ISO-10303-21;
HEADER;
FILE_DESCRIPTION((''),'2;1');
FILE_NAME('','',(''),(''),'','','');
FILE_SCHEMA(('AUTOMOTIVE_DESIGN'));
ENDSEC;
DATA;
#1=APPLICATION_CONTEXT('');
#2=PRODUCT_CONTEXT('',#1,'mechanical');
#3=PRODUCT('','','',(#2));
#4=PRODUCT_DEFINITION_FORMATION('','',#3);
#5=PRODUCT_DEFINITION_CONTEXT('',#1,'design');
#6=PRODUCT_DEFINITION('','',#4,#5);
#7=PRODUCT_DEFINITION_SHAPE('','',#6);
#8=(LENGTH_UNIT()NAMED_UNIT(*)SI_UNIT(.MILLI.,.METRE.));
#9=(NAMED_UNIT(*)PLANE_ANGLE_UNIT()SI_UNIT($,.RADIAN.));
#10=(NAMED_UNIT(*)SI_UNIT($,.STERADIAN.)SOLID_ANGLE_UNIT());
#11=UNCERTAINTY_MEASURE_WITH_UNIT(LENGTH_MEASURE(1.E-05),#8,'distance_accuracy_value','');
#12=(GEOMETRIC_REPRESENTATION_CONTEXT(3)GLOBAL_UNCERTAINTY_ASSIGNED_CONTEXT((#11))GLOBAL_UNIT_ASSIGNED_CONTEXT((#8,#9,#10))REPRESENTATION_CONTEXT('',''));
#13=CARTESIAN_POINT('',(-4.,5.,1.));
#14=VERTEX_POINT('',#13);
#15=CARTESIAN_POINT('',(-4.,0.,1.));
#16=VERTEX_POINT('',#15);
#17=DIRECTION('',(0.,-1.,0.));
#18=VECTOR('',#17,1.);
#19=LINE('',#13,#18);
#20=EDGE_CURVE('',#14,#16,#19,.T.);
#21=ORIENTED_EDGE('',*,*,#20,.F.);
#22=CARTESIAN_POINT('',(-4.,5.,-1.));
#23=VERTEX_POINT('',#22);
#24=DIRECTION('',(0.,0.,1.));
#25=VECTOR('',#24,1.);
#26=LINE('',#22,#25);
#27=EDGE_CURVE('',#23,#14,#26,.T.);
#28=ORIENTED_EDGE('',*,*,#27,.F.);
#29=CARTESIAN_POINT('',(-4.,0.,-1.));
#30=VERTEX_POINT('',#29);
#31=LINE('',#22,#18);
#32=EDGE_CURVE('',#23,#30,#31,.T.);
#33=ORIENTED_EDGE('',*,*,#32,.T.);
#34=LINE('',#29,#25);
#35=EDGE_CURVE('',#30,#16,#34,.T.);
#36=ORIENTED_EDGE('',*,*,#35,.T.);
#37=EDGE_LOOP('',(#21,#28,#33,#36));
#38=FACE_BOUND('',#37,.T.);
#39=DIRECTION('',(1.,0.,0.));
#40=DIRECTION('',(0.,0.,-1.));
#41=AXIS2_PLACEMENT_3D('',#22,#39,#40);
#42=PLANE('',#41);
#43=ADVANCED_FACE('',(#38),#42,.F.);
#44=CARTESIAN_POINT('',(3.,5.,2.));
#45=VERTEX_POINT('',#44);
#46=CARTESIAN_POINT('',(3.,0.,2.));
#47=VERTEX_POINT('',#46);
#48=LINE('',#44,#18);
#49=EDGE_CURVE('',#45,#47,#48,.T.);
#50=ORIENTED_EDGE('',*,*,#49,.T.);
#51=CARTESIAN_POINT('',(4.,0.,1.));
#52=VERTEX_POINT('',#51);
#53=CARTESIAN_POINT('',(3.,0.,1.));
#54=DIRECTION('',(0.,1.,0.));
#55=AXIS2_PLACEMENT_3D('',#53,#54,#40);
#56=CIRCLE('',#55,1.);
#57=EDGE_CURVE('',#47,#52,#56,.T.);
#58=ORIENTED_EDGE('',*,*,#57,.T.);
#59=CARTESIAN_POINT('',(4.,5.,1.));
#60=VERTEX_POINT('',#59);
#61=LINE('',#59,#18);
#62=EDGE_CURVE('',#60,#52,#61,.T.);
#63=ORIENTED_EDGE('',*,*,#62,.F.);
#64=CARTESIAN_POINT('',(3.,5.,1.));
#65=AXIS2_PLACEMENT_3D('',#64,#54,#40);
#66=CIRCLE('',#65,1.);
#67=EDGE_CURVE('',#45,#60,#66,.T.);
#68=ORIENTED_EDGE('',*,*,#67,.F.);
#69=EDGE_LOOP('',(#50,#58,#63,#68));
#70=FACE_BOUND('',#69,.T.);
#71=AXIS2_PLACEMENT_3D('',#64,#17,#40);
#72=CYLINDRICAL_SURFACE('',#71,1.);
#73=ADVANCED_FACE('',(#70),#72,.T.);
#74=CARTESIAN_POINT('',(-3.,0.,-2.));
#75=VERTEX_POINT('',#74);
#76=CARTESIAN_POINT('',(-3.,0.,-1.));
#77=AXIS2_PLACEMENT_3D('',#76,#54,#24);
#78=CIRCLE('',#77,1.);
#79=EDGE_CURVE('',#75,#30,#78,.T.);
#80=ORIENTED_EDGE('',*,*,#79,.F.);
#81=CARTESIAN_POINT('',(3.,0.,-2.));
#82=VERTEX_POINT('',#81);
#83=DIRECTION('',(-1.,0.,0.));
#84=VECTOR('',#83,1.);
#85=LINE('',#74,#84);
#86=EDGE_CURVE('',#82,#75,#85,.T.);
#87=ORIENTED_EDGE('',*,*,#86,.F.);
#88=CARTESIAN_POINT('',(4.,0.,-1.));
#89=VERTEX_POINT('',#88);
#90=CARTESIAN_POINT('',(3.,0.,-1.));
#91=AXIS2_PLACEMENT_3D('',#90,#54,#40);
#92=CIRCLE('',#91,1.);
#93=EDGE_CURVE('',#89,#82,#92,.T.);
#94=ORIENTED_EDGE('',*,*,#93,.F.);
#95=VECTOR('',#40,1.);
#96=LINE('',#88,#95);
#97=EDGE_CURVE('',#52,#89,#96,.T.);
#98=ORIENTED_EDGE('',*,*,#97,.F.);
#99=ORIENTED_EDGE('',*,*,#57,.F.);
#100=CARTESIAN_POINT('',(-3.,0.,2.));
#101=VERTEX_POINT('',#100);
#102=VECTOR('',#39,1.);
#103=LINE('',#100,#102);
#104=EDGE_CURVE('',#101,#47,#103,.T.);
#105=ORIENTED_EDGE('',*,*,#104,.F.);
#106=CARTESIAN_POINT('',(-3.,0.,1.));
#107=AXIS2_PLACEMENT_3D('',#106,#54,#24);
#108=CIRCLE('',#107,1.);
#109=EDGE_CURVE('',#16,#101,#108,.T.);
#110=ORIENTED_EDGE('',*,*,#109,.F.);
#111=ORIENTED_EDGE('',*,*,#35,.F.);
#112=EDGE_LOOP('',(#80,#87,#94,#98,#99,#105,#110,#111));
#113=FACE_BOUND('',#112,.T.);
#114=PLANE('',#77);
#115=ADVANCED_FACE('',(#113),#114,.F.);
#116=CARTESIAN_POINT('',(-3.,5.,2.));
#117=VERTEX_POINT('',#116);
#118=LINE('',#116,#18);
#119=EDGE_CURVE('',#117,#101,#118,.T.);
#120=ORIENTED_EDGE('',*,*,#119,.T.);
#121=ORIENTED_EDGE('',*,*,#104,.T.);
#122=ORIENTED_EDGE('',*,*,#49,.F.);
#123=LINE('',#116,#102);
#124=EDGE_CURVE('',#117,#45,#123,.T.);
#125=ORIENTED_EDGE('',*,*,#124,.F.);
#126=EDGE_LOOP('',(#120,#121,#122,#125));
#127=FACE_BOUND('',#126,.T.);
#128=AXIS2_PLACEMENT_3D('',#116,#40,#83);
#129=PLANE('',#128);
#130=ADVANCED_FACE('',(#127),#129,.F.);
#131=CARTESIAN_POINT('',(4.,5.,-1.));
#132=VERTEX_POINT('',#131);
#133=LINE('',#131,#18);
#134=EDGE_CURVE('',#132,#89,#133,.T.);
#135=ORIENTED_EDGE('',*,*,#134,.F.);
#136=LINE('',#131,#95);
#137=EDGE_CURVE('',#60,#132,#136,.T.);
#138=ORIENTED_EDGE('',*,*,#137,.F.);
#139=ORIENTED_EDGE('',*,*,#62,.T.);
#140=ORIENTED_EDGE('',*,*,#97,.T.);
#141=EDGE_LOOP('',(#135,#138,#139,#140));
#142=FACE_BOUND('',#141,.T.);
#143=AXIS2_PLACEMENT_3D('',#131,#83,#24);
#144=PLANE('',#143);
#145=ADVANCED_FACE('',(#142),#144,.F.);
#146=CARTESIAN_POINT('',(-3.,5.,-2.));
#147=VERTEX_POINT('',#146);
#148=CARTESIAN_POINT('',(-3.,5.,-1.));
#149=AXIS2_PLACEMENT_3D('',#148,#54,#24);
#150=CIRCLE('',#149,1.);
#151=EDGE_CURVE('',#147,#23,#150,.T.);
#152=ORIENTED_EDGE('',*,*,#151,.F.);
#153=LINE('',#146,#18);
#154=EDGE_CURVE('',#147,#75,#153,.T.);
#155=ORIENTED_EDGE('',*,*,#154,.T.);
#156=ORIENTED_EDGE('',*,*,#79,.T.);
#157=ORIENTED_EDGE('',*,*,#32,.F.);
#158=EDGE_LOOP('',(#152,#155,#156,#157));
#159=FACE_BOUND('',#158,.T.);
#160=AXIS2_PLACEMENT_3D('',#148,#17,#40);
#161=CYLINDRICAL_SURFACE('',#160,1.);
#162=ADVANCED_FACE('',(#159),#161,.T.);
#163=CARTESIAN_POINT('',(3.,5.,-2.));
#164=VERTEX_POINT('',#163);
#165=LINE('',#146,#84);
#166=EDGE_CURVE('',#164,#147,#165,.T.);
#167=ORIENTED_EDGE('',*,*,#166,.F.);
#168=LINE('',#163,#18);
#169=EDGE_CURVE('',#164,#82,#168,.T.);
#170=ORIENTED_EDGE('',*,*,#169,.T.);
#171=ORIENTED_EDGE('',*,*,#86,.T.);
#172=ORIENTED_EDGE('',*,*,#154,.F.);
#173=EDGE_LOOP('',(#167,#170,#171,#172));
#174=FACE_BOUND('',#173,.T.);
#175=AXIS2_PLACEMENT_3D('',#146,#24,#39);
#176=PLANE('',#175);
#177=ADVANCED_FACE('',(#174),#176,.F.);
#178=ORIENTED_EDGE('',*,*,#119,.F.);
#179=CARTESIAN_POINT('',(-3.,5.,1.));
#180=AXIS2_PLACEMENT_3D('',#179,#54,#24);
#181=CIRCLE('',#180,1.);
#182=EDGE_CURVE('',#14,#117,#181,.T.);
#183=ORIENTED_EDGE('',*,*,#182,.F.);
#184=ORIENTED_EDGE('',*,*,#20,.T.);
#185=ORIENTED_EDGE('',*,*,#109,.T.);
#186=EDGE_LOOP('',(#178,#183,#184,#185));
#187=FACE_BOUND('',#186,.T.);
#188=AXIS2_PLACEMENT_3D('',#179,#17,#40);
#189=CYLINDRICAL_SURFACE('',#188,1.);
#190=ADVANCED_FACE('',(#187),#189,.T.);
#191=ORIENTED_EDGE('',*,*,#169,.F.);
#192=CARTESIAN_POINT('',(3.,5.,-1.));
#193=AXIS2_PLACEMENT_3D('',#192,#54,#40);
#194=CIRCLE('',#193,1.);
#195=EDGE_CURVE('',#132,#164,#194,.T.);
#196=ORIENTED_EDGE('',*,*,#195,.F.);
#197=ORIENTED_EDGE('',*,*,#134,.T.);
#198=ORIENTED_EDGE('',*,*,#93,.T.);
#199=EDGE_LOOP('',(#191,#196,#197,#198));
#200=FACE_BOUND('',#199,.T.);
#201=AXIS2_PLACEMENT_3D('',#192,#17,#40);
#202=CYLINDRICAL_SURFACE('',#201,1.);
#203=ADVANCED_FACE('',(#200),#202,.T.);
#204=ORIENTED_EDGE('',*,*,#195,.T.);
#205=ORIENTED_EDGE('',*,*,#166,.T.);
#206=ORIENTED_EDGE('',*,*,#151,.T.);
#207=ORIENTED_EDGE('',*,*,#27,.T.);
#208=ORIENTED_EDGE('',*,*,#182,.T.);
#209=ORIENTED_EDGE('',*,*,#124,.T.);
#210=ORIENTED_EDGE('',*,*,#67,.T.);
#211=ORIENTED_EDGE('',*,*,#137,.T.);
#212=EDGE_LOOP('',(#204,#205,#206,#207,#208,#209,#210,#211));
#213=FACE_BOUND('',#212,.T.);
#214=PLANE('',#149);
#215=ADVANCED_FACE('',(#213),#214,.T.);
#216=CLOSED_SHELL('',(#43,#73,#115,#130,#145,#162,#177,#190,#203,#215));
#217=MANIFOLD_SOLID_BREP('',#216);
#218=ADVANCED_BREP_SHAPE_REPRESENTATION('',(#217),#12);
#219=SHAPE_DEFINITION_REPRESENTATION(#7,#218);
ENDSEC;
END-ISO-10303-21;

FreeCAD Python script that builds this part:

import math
import FreeCAD as App
import Part
import Sketcher
from FreeCAD import Vector
Q = App.Units.Quantity

doc = App.newDocument("Part")
body = doc.addObject("PartDesign::Body", "Body")

# Sketch on XZ plane
sketch1 = doc.addObject("Sketcher::SketchObject", "Sketch")
body.addObject(sketch1)
sketch1.AttachmentSupport = (doc.XZ_Plane, [""])
sketch1.MapMode = "FlatFace"
sketch1.addGeometry([
    Part.LineSegment(Vector(3, -2, 0), Vector(-3, -2, 0)),  # 0
    Part.ArcOfCircle(Part.Circle(Vector(-3, -1, 0), Vector(0, 0, 1), 1), math.radians(-180), math.radians(-90)),  # 1
    Part.LineSegment(Vector(-4, -1, 0), Vector(-4, 1, 0)),  # 2
    Part.ArcOfCircle(Part.Circle(Vector(-3, 1, 0), Vector(0, 0, 1), 1), math.radians(90), math.radians(180)),  # 3
    Part.LineSegment(Vector(-3, 2, 0), Vector(3, 2, 0)),  # 4
    Part.ArcOfCircle(Part.Circle(Vector(3, 1, 0), Vector(0, 0, 1), 1), math.radians(0), math.radians(90)),  # 5
    Part.LineSegment(Vector(4, 1, 0), Vector(4, -1, 0)),  # 6
    Part.ArcOfCircle(Part.Circle(Vector(3, -1, 0), Vector(0, 0, 1), 1), math.radians(-90), math.radians(0)),  # 7
], False)
sketch1.addConstraint([
    Sketcher.Constraint("Tangent", 0, 2, 1, 2),
    Sketcher.Constraint("Tangent", 1, 1, 2, 1),
    Sketcher.Constraint("Tangent", 2, 2, 3, 2),
    Sketcher.Constraint("Tangent", 3, 1, 4, 1),
    Sketcher.Constraint("Tangent", 4, 2, 5, 2),
    Sketcher.Constraint("Tangent", 5, 1, 6, 1),
    Sketcher.Constraint("Tangent", 6, 2, 7, 2),
    Sketcher.Constraint("Tangent", 7, 1, 0, 1),
    Sketcher.Constraint("Horizontal", 0),
    Sketcher.Constraint("Vertical", 2),
    Sketcher.Constraint("Horizontal", 4),
    Sketcher.Constraint("Vertical", 6),
    Sketcher.Constraint("Equal", 1, 3),
    Sketcher.Constraint("Equal", 3, 5),
    Sketcher.Constraint("Equal", 5, 7),
    Sketcher.Constraint("Symmetric", 1, 3, 5, 3, -1, 1),
    Sketcher.Constraint("Radius", 1, Q("1 mm")),
    Sketcher.Constraint("DistanceX", 0, 2, 0, 1, Q("6 mm")),
    Sketcher.Constraint("DistanceY", 2, 1, 2, 2, Q("2 mm")),
])
pad1 = doc.addObject("PartDesign::Pad", "Pad")
body.addObject(pad1)
pad1.Profile = sketch1
pad1.Length = 5
pad1.Reversed = True

doc.recompute()
